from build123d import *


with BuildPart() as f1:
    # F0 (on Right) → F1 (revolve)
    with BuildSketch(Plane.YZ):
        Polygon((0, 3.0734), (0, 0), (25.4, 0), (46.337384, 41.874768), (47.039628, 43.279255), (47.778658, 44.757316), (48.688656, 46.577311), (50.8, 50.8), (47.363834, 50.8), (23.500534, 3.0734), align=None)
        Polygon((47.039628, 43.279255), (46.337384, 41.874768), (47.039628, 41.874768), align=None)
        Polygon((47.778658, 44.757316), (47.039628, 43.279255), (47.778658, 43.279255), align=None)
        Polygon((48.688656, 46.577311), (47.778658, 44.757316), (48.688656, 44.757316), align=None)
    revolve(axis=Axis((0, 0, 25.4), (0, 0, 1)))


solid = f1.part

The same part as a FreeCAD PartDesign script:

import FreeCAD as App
import Part
import Sketcher
Q = App.Units.Quantity

doc = App.newDocument("Part")
body = doc.addObject("PartDesign::Body", "Body")

# Sketch on YZ plane
sketch1 = doc.addObject("Sketcher::SketchObject", "Sketch")
body.addObject(sketch1)
sketch1.AttachmentSupport = (doc.YZ_Plane, [""])
sketch1.MapMode = "FlatFace"
sketch1.addGeometry([
    Part.LineSegment(App.Vector(0, 3.1, 0), App.Vector(0, 0, 0)),  # 0
    Part.LineSegment(App.Vector(0, 0, 0), App.Vector(25.4, 0, 0)),  # 1
    Part.LineSegment(App.Vector(25.4, 0, 0), App.Vector(46.3, 41.9, 0)),  # 2
    Part.LineSegment(App.Vector(46.3, 41.9, 0), App.Vector(47, 41.9, 0)),  # 3
    Part.LineSegment(App.Vector(47, 41.9, 0), App.Vector(47, 43.3, 0)),  # 4
    Part.LineSegment(App.Vector(47, 43.3, 0), App.Vector(47.8, 43.3, 0)),  # 5
    Part.LineSegment(App.Vector(47.8, 43.3, 0), App.Vector(47.8, 44.8, 0)),  # 6
    Part.LineSegment(App.Vector(47.8, 44.8, 0), App.Vector(48.7, 44.8, 0)),  # 7
    Part.LineSegment(App.Vector(48.7, 44.8, 0), App.Vector(48.7, 46.6, 0)),  # 8
    Part.LineSegment(App.Vector(48.7, 46.6, 0), App.Vector(50.8, 50.8, 0)),  # 9
    Part.LineSegment(App.Vector(50.8, 50.8, 0), App.Vector(47.4, 50.8, 0)),  # 10
    Part.LineSegment(App.Vector(47.4, 50.8, 0), App.Vector(23.5, 3.1, 0)),  # 11
    Part.LineSegment(App.Vector(23.5, 3.1, 0), App.Vector(0, 3.1, 0)),  # 12
], False)
sketch1.addConstraint([
    Sketcher.Constraint("Coincident", 0, 2, 1, 1),
    Sketcher.Constraint("Coincident", 1, 2, 2, 1),
    Sketcher.Constraint("Coincident", 2, 2, 3, 1),
    Sketcher.Constraint("Coincident", 3, 2, 4, 1),
    Sketcher.Constraint("Coincident", 4, 2, 5, 1),
    Sketcher.Constraint("Coincident", 5, 2, 6, 1),
    Sketcher.Constraint("Coincident", 6, 2, 7, 1),
    Sketcher.Constraint("Coincident", 7, 2, 8, 1),
    Sketcher.Constraint("Coincident", 8, 2, 9, 1),
    Sketcher.Constraint("Coincident", 9, 2, 10, 1),
    Sketcher.Constraint("Coincident", 10, 2, 11, 1),
    Sketcher.Constraint("Coincident", 11, 2, 12, 1),
    Sketcher.Constraint("Coincident", 12, 2, 0, 1),
    Sketcher.Constraint("Vertical", 0),
    Sketcher.Constraint("Horizontal", 1),
    Sketcher.Constraint("Horizontal", 3),
    Sketcher.Constraint("Vertical", 4),
    Sketcher.Constraint("Horizontal", 5),
    Sketcher.Constraint("Vertical", 6),
    Sketcher.Constraint("Horizontal", 7),
    Sketcher.Constraint("Vertical", 8),
    Sketcher.Constraint("Horizontal", 10),
    Sketcher.Constraint("Horizontal", 12),
    Sketcher.Constraint("Coincident", 0, 2, -1, 1),
    Sketcher.Constraint("Parallel", 2, 9),
    Sketcher.Constraint("Parallel", 9, 11),
    Sketcher.Constraint("DistanceX", 1, 1, 1, 2, Q("1 in")),
    Sketcher.Constraint("DistanceX", -1, 1, 9, 2, Q("2 in")),
    Sketcher.Constraint("DistanceY", -1, 1, 9, 2, Q("2 in")),
    Sketcher.Constraint("DistanceY", 0, 2, 0, 1, Q("0.121 in")),
    Sketcher.Constraint("DistanceX", 7, 1, 7, 2, 0.909998),
    Sketcher.Constraint("DistanceX", 5, 1, 5, 2, 0.73903),
    Sketcher.Constraint("DistanceY", 6, 1, 6, 2, 1.478061),
    Sketcher.Constraint("Distance", 9, 4.72111),
    Sketcher.Constraint("Distance", 11, 53.359961),
    Sketcher.Constraint("DistanceX", 3, 1, 3, 2, 0.702244),
    Sketcher.Constraint("DistanceX", 10, 2, 10, 1, 3.436166),
    Sketcher.Constraint("DistanceY", 4, 1, 4, 2, 1.404487),
])
revolution = doc.addObject("PartDesign::Revolution", "Revolution")
body.addObject(revolution)
revolution.Profile = sketch1
revolution.ReferenceAxis = (sketch1, ["V_Axis"])
revolution.Angle = 360

doc.recompute()
